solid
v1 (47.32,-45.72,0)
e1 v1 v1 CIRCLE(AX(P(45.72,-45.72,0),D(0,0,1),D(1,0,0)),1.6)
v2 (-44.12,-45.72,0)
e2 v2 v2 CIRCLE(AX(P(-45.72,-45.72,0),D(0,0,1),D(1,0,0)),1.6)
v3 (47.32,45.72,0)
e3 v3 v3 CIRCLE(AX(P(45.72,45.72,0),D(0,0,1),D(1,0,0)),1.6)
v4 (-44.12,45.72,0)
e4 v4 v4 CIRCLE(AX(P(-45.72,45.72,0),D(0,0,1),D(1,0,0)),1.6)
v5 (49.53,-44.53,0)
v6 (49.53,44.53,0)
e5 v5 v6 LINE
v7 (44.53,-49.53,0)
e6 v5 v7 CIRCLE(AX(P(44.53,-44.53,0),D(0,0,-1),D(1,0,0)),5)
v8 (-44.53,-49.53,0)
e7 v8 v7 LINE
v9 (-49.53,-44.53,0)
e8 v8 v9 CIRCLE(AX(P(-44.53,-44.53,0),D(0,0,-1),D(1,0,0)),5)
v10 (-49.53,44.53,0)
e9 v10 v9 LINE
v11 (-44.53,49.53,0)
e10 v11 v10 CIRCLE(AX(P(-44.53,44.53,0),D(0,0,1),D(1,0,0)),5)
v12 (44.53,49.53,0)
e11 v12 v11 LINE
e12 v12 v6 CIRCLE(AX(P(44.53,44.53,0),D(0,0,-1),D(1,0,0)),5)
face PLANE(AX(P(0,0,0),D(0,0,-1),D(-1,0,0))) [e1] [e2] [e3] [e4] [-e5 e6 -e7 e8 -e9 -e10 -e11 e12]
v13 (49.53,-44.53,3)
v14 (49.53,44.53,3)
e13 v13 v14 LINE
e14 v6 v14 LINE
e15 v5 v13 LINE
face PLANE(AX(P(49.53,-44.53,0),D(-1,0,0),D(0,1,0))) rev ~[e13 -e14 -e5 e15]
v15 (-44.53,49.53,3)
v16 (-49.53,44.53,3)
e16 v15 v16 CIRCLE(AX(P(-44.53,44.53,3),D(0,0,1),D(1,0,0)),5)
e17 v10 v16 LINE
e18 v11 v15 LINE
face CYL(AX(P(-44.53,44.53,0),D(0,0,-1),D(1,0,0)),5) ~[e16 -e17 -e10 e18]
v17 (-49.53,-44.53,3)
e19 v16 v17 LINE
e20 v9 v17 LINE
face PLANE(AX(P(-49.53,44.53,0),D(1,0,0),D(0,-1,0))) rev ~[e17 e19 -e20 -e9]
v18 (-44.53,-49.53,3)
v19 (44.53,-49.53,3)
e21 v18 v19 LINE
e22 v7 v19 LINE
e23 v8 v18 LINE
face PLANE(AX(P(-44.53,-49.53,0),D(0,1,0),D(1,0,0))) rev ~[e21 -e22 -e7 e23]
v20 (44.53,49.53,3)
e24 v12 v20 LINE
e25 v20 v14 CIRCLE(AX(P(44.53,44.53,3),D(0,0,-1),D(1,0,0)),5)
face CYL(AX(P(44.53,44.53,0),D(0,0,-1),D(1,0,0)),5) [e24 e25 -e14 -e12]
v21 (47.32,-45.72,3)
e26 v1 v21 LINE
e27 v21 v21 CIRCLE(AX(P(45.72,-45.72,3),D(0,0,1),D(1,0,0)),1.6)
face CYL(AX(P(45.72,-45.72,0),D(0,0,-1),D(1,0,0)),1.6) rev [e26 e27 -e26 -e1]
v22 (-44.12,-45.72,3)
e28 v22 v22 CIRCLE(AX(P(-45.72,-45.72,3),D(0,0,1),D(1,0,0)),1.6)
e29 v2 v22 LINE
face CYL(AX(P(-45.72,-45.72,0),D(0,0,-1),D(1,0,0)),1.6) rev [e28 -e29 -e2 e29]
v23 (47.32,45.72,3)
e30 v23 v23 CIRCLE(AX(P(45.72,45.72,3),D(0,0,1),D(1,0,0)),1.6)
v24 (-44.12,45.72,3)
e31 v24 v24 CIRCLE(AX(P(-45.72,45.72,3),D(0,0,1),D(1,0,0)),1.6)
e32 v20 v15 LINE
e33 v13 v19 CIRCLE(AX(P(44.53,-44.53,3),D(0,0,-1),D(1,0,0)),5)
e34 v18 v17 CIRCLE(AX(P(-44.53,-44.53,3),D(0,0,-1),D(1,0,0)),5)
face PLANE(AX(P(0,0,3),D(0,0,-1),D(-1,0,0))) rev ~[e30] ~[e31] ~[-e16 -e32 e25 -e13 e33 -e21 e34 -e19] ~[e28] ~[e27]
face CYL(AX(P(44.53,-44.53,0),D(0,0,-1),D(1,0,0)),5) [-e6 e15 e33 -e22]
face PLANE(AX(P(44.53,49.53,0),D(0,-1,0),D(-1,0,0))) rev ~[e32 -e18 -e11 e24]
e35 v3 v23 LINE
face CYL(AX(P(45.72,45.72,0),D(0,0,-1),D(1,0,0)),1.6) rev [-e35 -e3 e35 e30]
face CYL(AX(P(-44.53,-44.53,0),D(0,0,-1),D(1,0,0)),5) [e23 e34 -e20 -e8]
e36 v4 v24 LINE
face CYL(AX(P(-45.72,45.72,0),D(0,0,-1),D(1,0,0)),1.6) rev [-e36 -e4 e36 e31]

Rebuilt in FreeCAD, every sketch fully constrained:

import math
import FreeCAD as App
import Part
import Sketcher
from FreeCAD import Vector

doc = App.newDocument("Part")
body = doc.addObject("PartDesign::Body", "Body")

sketch1 = body.newObject("Sketcher::SketchObject", "Sketch")
sketch1.AttachmentSupport = (doc.getObject("XY_Plane"), [""])
sketch1.MapMode = "FlatFace"
sketch1.addGeometry(Part.ArcOfCircle(Part.Circle(Vector(44.5, -44.5, 0), Vector(0, 0, 1), 5), math.radians(-90), math.radians(0)), False)
sketch1.addGeometry(Part.LineSegment(Vector(49.5, -44.5, 0), Vector(49.5, 44.5, 0)), False)
sketch1.addGeometry(Part.ArcOfCircle(Part.Circle(Vector(44.5, 44.5, 0), Vector(0, 0, 1), 5), math.radians(0), math.radians(90)), False)
sketch1.addGeometry(Part.LineSegment(Vector(44.5, 49.5, 0), Vector(-44.5, 49.5, 0)), False)
sketch1.addGeometry(Part.ArcOfCircle(Part.Circle(Vector(-44.5, 44.5, 0), Vector(0, 0, 1), 5), math.radians(90), math.radians(180)), False)
sketch1.addGeometry(Part.LineSegment(Vector(-49.5, 44.5, 0), Vector(-49.5, -44.5, 0)), False)
sketch1.addGeometry(Part.ArcOfCircle(Part.Circle(Vector(-44.5, -44.5, 0), Vector(0, 0, 1), 5), math.radians(180), math.radians(270)), False)
sketch1.addGeometry(Part.LineSegment(Vector(-44.5, -49.5, 0), Vector(44.5, -49.5, 0)), False)
sketch1.addGeometry(Part.Circle(Vector(-45.7, -45.7, 0), Vector(0, 0, 1), 1.6), False)
sketch1.addGeometry(Part.Circle(Vector(45.7, -45.7, 0), Vector(0, 0, 1), 1.6), False)
sketch1.addGeometry(Part.Circle(Vector(-45.7, 45.7, 0), Vector(0, 0, 1), 1.6), False)
sketch1.addGeometry(Part.Circle(Vector(45.7, 45.7, 0), Vector(0, 0, 1), 1.6), False)
sketch1.addConstraint(Sketcher.Constraint("Tangent", 0, 2, 1, 1))
sketch1.addConstraint(Sketcher.Constraint("Tangent", 1, 2, 2, 1))
sketch1.addConstraint(Sketcher.Constraint("Tangent", 2, 2, 3, 1))
sketch1.addConstraint(Sketcher.Constraint("Tangent", 3, 2, 4, 1))
sketch1.addConstraint(Sketcher.Constraint("Tangent", 4, 2, 5, 1))
sketch1.addConstraint(Sketcher.Constraint("Tangent", 5, 2, 6, 1))
sketch1.addConstraint(Sketcher.Constraint("Tangent", 6, 2, 7, 1))
sketch1.addConstraint(Sketcher.Constraint("Tangent", 7, 2, 0, 1))
sketch1.addConstraint(Sketcher.Constraint("Vertical", 1))
sketch1.addConstraint(Sketcher.Constraint("Horizontal", 3))
sketch1.addConstraint(Sketcher.Constraint("Vertical", 5))
sketch1.addConstraint(Sketcher.Constraint("Horizontal", 7))
sketch1.addConstraint(Sketcher.Constraint("Equal", 0, 2))
sketch1.addConstraint(Sketcher.Constraint("Equal", 2, 4))
sketch1.addConstraint(Sketcher.Constraint("Equal", 4, 6))
sketch1.addConstraint(Sketcher.Constraint("Equal", 8, 9))
sketch1.addConstraint(Sketcher.Constraint("Equal", 9, 10))
sketch1.addConstraint(Sketcher.Constraint("Equal", 10, 11))
sketch1.addConstraint(Sketcher.Constraint("Symmetric", 0, 3, 4, 3, -1, 1))
sketch1.addConstraint(Sketcher.Constraint("Symmetric", 9, 3, 10, 3, -1, 1))
sketch1.addConstraint(Sketcher.Constraint("Symmetric", 8, 3, 11, 3, -1, 1))
sketch1.addConstraint(Sketcher.Constraint("Symmetric", 8, 3, 9, 3, -2))
sketch1.addConstraint(Sketcher.Constraint("Equal", 7, 1))
sketch1.addConstraint(Sketcher.Constraint("Radius", 0, 5.0))
sketch1.addConstraint(Sketcher.Constraint("Diameter", 8, 3.2))
sketch1.addConstraint(Sketcher.Constraint("DistanceX", 3, 2, 3, 1, 89.06))
sketch1.addConstraint(Sketcher.Constraint("DistanceX", 8, 3, -1, 1, 45.72))
sketch1.addConstraint(Sketcher.Constraint("DistanceY", 8, 3, -1, 1, 45.72))
pad1 = body.newObject("PartDesign::Pad", "Pad")
pad1.Profile = sketch1
pad1.Length = 3

doc.recompute()
